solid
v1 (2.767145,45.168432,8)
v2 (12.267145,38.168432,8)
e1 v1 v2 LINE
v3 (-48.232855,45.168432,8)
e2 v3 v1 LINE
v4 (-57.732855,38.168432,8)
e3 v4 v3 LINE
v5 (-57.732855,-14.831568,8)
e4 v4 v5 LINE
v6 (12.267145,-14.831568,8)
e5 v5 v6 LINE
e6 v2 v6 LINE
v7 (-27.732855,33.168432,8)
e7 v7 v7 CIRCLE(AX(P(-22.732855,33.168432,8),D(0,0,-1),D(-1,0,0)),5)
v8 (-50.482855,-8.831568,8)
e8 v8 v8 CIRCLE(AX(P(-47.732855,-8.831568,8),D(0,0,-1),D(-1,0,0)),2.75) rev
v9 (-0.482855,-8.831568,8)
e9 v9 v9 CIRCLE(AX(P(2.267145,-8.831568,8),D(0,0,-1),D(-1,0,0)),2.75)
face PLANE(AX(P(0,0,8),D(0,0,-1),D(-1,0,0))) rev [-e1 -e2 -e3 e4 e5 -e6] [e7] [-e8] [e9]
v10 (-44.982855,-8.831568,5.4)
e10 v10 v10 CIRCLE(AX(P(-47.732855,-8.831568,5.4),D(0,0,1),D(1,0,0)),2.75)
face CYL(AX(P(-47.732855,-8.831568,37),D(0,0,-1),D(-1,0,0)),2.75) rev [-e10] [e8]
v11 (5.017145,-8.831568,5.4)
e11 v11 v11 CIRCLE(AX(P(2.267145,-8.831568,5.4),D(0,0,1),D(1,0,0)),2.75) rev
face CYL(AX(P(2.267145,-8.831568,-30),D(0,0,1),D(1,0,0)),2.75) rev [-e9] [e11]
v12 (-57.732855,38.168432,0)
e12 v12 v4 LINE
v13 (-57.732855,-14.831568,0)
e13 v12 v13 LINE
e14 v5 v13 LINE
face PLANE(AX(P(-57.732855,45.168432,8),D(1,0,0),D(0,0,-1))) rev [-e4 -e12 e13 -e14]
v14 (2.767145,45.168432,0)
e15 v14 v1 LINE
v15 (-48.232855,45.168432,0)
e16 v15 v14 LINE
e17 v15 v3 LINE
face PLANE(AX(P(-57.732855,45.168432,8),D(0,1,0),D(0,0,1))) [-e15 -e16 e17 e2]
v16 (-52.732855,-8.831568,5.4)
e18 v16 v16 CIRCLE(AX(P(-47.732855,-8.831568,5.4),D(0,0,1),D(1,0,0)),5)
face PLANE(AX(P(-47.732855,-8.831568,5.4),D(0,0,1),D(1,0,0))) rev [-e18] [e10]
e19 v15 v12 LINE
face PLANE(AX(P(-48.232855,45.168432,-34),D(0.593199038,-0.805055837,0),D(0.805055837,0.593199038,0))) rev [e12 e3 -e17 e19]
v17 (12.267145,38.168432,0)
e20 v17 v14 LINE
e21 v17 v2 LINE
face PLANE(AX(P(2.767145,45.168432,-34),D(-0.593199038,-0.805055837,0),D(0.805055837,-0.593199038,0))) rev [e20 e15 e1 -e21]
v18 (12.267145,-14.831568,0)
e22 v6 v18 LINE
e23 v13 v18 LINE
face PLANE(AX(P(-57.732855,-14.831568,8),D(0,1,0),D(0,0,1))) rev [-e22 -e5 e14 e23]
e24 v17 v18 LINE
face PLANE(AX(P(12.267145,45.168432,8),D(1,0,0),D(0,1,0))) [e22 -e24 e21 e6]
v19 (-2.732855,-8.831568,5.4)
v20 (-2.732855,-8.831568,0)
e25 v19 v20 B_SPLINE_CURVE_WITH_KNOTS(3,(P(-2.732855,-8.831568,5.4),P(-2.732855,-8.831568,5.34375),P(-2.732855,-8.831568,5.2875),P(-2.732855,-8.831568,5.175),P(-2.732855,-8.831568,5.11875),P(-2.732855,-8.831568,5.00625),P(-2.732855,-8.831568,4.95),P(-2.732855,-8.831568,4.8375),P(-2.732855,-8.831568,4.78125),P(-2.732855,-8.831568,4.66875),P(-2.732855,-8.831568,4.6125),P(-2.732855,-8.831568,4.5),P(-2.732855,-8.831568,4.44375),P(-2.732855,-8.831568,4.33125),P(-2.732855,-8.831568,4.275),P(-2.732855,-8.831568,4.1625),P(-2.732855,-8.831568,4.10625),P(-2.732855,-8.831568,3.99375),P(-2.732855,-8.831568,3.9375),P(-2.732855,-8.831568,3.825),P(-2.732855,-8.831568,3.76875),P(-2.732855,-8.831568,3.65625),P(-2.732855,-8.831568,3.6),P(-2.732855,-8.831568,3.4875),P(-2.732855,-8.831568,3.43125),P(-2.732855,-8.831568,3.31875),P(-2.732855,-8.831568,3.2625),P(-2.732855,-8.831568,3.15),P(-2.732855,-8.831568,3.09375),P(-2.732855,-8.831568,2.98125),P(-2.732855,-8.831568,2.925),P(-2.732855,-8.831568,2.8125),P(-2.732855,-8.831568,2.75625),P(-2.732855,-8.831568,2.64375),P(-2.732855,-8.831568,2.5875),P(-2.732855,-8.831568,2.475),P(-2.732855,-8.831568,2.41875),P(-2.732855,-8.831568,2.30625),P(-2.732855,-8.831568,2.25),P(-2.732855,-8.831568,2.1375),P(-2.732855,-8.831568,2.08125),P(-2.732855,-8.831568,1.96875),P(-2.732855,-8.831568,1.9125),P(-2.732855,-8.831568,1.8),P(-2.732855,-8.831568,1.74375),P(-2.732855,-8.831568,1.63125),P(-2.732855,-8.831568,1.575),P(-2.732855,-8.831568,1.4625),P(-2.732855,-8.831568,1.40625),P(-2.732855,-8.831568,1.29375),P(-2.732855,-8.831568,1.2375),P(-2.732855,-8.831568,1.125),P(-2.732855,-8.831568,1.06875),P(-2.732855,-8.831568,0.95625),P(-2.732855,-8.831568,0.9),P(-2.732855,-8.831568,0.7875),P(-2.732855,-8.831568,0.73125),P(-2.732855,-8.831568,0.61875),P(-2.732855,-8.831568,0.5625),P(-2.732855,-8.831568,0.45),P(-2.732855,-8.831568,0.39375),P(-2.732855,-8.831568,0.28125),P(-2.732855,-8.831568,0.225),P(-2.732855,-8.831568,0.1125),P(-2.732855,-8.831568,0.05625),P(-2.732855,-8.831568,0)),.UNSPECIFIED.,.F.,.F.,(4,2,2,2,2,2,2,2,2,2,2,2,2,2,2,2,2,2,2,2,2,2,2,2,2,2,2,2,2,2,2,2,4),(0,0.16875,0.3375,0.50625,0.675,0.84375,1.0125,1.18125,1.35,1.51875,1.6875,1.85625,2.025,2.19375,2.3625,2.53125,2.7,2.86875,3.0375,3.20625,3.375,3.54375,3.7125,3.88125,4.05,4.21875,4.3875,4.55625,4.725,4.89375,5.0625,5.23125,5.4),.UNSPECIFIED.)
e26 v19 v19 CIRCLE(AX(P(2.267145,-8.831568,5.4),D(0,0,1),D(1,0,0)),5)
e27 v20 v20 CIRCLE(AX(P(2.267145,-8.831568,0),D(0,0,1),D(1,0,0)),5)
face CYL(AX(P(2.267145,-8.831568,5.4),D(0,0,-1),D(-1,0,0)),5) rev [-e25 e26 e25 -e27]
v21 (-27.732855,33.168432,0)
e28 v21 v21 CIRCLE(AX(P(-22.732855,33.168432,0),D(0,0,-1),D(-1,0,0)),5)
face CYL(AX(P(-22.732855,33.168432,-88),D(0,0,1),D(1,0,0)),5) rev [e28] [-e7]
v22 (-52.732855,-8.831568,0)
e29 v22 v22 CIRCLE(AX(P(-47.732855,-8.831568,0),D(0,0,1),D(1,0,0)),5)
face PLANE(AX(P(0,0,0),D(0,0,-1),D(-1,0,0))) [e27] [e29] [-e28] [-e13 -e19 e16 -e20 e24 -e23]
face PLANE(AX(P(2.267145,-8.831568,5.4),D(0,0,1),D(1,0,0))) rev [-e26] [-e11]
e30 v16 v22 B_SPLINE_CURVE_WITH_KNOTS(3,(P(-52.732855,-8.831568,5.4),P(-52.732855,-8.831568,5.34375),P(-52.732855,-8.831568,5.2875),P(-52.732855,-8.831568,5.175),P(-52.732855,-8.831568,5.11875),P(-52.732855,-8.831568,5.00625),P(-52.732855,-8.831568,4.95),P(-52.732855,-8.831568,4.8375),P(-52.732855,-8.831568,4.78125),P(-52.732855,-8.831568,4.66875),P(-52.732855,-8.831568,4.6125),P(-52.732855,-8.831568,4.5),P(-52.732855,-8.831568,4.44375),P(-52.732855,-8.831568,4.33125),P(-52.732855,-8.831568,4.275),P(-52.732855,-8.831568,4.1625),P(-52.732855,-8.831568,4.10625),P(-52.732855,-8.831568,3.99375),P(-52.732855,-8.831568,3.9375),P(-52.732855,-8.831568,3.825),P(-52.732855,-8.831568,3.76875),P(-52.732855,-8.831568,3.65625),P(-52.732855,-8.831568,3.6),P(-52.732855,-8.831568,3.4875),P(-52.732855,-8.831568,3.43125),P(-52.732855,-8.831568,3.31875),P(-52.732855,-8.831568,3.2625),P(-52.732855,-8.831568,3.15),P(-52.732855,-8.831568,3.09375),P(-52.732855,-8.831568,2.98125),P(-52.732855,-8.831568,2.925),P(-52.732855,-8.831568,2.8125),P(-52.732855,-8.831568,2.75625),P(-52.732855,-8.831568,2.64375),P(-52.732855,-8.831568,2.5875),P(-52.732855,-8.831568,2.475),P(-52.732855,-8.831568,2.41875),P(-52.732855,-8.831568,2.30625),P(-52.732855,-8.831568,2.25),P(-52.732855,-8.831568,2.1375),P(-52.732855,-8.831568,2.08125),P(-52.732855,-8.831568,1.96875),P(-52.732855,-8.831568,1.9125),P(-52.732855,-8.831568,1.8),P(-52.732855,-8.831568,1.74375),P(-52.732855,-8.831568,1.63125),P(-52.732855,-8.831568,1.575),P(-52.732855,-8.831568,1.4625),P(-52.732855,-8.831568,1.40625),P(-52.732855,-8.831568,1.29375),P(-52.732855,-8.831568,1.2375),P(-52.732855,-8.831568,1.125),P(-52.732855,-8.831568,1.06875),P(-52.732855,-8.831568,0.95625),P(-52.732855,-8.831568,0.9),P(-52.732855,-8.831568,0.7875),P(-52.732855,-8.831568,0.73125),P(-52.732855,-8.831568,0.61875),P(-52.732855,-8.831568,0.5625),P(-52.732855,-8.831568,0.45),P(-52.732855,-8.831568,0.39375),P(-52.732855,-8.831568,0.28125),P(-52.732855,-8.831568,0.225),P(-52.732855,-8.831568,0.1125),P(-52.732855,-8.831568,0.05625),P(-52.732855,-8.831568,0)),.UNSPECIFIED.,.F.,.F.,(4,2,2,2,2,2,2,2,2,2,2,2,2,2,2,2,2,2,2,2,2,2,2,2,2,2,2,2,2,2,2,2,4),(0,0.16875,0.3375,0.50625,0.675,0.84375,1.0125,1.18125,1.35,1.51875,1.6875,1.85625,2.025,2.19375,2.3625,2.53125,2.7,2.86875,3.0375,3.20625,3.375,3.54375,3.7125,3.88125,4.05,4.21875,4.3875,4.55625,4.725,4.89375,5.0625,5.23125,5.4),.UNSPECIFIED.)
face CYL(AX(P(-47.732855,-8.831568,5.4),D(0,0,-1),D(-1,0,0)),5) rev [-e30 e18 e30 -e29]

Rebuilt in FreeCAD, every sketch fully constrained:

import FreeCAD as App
import Part
import Sketcher
Q = App.Units.Quantity

doc = App.newDocument("Part")
body = doc.addObject("PartDesign::Body", "Body")

# Sketch on XY plane
sketch1 = doc.addObject("Sketcher::SketchObject", "Sketch")
body.addObject(sketch1)
sketch1.AttachmentSupport = (doc.XY_Plane, [""])
sketch1.MapMode = "FlatFace"
sketch1.addGeometry([
    Part.LineSegment(App.Vector(-58, 45, 0), App.Vector(-58, -15, 0)),
    Part.LineSegment(App.Vector(-58, -15, 0), App.Vector(12, -15, 0)),
    Part.LineSegment(App.Vector(12, -15, 0), App.Vector(12, 45, 0)),
    Part.LineSegment(App.Vector(12, 45, 0), App.Vector(-58, 45, 0)),
], False)
sketch1.addConstraint([
    Sketcher.Constraint("Coincident", 0, 2, 1, 1),
    Sketcher.Constraint("Coincident", 1, 2, 2, 1),
    Sketcher.Constraint("Coincident", 2, 2, 3, 1),
    Sketcher.Constraint("Coincident", 3, 2, 0, 1),
    Sketcher.Constraint("Vertical", 0),
    Sketcher.Constraint("Horizontal", 1),
    Sketcher.Constraint("Vertical", 2),
    Sketcher.Constraint("Horizontal", 3),
    Sketcher.Constraint("DistanceX", 1, 1, 1, 2, Q("70 mm")),
    Sketcher.Constraint("DistanceY", 0, 2, 0, 1, Q("60 mm")),
    Sketcher.Constraint("DistanceX", 0, 2, -1, 1, Q("57.732855 mm")),
    Sketcher.Constraint("DistanceY", 0, 2, -1, 1, Q("14.831568 mm")),
])
pad1 = doc.addObject("PartDesign::Pad", "Pad")
body.addObject(pad1)
pad1.Profile = sketch1
pad1.Length = 8

# Sketch on XY plane
sketch2 = doc.addObject("Sketcher::SketchObject", "Sketch001")
body.addObject(sketch2)
sketch2.AttachmentSupport = (doc.XY_Plane, [""])
sketch2.MapMode = "FlatFace"
sketch2.addGeometry(Part.Circle(App.Vector(-47.7, -8.8, 0), App.Vector(0, 0, 1), 2.8), False)
sketch2.addConstraint([
    Sketcher.Constraint("Diameter", 0, Q("5.5 mm")),
    Sketcher.Constraint("DistanceX", 0, 3, -1, 1, Q("47.732855 mm")),
    Sketcher.Constraint("DistanceY", 0, 3, -1, 1, Q("8.831568 mm")),
])
pocket1 = doc.addObject("PartDesign::Pocket", "Pocket")
body.addObject(pocket1)
pocket1.Profile = sketch2
pocket1.Type = "ThroughAll"
pocket1.Midplane = True

# Sketch on XY plane
sketch3 = doc.addObject("Sketcher::SketchObject", "Sketch002")
body.addObject(sketch3)
sketch3.AttachmentSupport = (doc.XY_Plane, [""])
sketch3.MapMode = "FlatFace"
sketch3.addGeometry(Part.Circle(App.Vector(2.3, -8.8, 0), App.Vector(0, 0, 1), 2.8), False)
sketch3.addConstraint([
    Sketcher.Constraint("Diameter", 0, Q("5.5 mm")),
    Sketcher.Constraint("DistanceX", -1, 1, 0, 3, Q("2.267145 mm")),
    Sketcher.Constraint("DistanceY", 0, 3, -1, 1, Q("8.831568 mm")),
])
pocket2 = doc.addObject("PartDesign::Pocket", "Pocket001")
body.addObject(pocket2)
pocket2.Profile = sketch3
pocket2.Type = "ThroughAll"
pocket2.Midplane = True

# Sketch on XY plane
sketch4 = doc.addObject("Sketcher::SketchObject", "Sketch003")
body.addObject(sketch4)
sketch4.AttachmentSupport = (doc.XY_Plane, [""])
sketch4.MapMode = "FlatFace"
sketch4.addGeometry(Part.Circle(App.Vector(-23, 33, 0), App.Vector(0, 0, 1), 5), False)
sketch4.addConstraint([
    Sketcher.Constraint("Diameter", 0, Q("10 mm")),
    Sketcher.Constraint("DistanceX", 0, 3, -1, 1, Q("22.732855 mm")),
    Sketcher.Constraint("DistanceY", -1, 1, 0, 3, Q("33.168432 mm")),
])
pocket3 = doc.addObject("PartDesign::Pocket", "Pocket002")
body.addObject(pocket3)
pocket3.Profile = sketch4
pocket3.Type = "ThroughAll"
pocket3.Midplane = True

# Sketch on XY plane
sketch5 = doc.addObject("Sketcher::SketchObject", "Sketch004")
body.addObject(sketch5)
sketch5.AttachmentSupport = (doc.XY_Plane, [""])
sketch5.MapMode = "FlatFace"
sketch5.AttachmentOffset = App.Placement(App.Vector(0, 0, 8), App.Rotation())
sketch5.addGeometry([
    Part.LineSegment(App.Vector(-58, 38, 0), App.Vector(-48, 45, 0)),  # 0
    Part.LineSegment(App.Vector(-48, 45, 0), App.Vector(-58, 45, 0)),  # 1
    Part.LineSegment(App.Vector(-58, 45, 0), App.Vector(-58, 38, 0)),  # 2
    Part.LineSegment(App.Vector(3, 45, 0), App.Vector(12, 38, 0)),  # 3
    Part.LineSegment(App.Vector(12, 38, 0), App.Vector(12, 45, 0)),  # 4
    Part.LineSegment(App.Vector(12, 45, 0), App.Vector(3, 45, 0)),  # 5
], False)
sketch5.addConstraint([
    Sketcher.Constraint("Coincident", 0, 2, 1, 1),
    Sketcher.Constraint("Coincident", 1, 2, 2, 1),
    Sketcher.Constraint("Coincident", 2, 2, 0, 1),
    Sketcher.Constraint("Coincident", 3, 2, 4, 1),
    Sketcher.Constraint("Coincident", 4, 2, 5, 1),
    Sketcher.Constraint("Coincident", 5, 2, 3, 1),
    Sketcher.Constraint("Horizontal", 1),
    Sketcher.Constraint("Vertical", 2),
    Sketcher.Constraint("Vertical", 4),
    Sketcher.Constraint("Horizontal", 5),
    Sketcher.Constraint("Horizontal", 2, 2, 3, 2),
    Sketcher.Constraint("Horizontal", 1, 2, 4, 2),
    Sketcher.Constraint("Equal", 1, 5),
    Sketcher.Constraint("DistanceY", 2, 2, 2, 1, Q("7 mm")),
    Sketcher.Constraint("DistanceX", 1, 2, 1, 1, Q("9.5 mm")),
    Sketcher.Constraint("DistanceX", 2, 2, 3, 2, Q("70 mm")),
    Sketcher.Constraint("DistanceX", 0, 2, -1, 1, Q("48.232855 mm")),
    Sketcher.Constraint("DistanceY", -1, 1, 0, 2, Q("45.168432 mm")),
])
pocket4 = doc.addObject("PartDesign::Pocket", "Pocket003")
body.addObject(pocket4)
pocket4.Profile = sketch5
pocket4.Length = 42

# Sketch on XY plane
sketch6 = doc.addObject("Sketcher::SketchObject", "Sketch005")
body.addObject(sketch6)
sketch6.AttachmentSupport = (doc.XY_Plane, [""])
sketch6.MapMode = "FlatFace"
sketch6.addGeometry(Part.Circle(App.Vector(-48, -9, 0), App.Vector(0, 0, 1), 5), False)
sketch6.addConstraint([
    Sketcher.Constraint("Diameter", 0, Q("10 mm")),
    Sketcher.Constraint("DistanceX", 0, 3, -1, 1, Q("47.732855 mm")),
    Sketcher.Constraint("DistanceY", 0, 3, -1, 1, Q("8.831568 mm")),
])
pocket5 = doc.addObject("PartDesign::Pocket", "Pocket004")
body.addObject(pocket5)
pocket5.Profile = sketch6
pocket5.Length = 5.4
pocket5.Reversed = True

# Sketch on XY plane
sketch7 = doc.addObject("Sketcher::SketchObject", "Sketch006")
body.addObject(sketch7)
sketch7.AttachmentSupport = (doc.XY_Plane, [""])
sketch7.MapMode = "FlatFace"
sketch7.addGeometry(Part.Circle(App.Vector(2, -9, 0), App.Vector(0, 0, 1), 5), False)
sketch7.addConstraint([
    Sketcher.Constraint("Diameter", 0, Q("10 mm")),
    Sketcher.Constraint("DistanceX", -1, 1, 0, 3, Q("2.267145 mm")),
    Sketcher.Constraint("DistanceY", 0, 3, -1, 1, Q("8.831568 mm")),
])
pocket6 = doc.addObject("PartDesign::Pocket", "Pocket005")
body.addObject(pocket6)
pocket6.Profile = sketch7
pocket6.Length = 5.4
pocket6.Reversed = True

doc.recompute()
